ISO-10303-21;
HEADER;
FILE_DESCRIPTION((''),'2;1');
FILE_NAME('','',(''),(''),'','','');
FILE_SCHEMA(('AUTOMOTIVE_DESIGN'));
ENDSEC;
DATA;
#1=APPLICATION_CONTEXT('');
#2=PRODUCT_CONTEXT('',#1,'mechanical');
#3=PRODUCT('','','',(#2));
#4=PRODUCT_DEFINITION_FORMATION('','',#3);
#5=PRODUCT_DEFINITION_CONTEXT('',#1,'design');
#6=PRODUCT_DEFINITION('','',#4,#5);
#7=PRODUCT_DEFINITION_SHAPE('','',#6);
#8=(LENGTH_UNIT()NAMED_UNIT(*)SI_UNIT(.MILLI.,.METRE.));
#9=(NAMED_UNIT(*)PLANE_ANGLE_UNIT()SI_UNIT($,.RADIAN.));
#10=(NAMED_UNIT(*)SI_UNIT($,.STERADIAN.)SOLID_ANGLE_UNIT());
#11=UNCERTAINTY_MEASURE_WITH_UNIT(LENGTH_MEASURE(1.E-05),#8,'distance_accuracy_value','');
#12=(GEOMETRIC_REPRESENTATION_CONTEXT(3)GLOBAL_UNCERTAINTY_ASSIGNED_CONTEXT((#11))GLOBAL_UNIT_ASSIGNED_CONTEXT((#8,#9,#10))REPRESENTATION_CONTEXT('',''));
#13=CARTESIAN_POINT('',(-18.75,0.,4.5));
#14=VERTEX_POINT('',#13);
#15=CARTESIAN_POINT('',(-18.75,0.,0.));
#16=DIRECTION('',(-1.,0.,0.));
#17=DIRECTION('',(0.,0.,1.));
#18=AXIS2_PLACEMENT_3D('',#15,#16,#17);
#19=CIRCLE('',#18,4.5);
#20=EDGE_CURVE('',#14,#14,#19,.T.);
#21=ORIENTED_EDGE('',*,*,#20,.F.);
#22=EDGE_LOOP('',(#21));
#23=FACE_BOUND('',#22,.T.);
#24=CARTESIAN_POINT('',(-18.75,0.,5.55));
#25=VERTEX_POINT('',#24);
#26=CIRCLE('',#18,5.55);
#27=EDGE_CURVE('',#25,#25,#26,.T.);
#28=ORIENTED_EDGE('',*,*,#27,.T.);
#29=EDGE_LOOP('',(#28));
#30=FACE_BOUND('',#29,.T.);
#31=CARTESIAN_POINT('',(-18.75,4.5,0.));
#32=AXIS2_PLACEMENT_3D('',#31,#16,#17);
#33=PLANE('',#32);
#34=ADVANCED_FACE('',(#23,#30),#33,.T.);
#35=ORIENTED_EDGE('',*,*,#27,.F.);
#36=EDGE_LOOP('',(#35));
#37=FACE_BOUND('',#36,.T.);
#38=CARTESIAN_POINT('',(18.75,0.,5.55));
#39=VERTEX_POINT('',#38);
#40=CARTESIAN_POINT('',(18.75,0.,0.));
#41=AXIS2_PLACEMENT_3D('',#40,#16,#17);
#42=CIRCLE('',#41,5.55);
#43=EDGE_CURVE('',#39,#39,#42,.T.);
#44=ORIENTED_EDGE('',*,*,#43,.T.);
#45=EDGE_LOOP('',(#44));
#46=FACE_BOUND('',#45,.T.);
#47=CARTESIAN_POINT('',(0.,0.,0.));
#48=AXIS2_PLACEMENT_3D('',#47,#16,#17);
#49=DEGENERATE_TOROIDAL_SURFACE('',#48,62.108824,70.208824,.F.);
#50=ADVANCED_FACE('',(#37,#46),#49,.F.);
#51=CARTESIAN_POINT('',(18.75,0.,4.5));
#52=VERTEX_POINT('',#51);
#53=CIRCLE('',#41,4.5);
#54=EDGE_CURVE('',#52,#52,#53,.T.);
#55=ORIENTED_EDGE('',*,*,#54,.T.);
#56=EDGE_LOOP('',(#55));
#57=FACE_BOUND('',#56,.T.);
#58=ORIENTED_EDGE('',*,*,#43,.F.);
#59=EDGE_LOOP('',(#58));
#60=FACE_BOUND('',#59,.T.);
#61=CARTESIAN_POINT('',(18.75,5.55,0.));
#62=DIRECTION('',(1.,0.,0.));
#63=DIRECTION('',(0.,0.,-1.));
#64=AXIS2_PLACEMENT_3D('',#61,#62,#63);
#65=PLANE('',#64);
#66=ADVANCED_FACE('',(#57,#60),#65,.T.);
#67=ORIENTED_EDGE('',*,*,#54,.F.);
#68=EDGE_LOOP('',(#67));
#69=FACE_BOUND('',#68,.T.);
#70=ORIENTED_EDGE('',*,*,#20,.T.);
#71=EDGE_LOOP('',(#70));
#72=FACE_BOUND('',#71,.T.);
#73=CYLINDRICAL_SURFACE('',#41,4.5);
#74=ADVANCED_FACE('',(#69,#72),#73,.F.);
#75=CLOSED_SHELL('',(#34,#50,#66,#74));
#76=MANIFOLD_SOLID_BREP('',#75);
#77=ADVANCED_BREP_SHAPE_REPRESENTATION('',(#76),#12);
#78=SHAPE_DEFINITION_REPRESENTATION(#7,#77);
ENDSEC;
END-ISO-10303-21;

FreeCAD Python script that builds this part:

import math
import FreeCAD as App
import Part
import Sketcher
from FreeCAD import Vector

doc = App.newDocument("Part")
body = doc.addObject("PartDesign::Body", "Body")

# Sketch on XY plane
sketch1 = body.newObject("Sketcher::SketchObject", "Sketch")
sketch1.AttachmentSupport = (doc.getObject("XY_Plane"), [""])
sketch1.MapMode = "FlatFace"
sketch1.addGeometry(Part.LineSegment(Vector(18.75, 5.55, 0), Vector(18.75, 4.5, 0)), False)
sketch1.addGeometry(Part.LineSegment(Vector(18.75, 4.5, 0), Vector(-18.75, 4.5, 0)), False)
sketch1.addGeometry(Part.LineSegment(Vector(-18.75, 4.5, 0), Vector(-18.75, 5.55, 0)), False)
sketch1.addGeometry(Part.ArcOfCircle(Part.Circle(Vector(0, -62.108824, 0), Vector(0, 0, 1), 70.208824), math.radians(74.510579), math.radians(105.489421)), False)
sketch1.addConstraint(Sketcher.Constraint("Coincident", 0, 2, 1, 1))
sketch1.addConstraint(Sketcher.Constraint("Coincident", 1, 2, 2, 1))
sketch1.addConstraint(Sketcher.Constraint("Coincident", 2, 2, 3, 2))
sketch1.addConstraint(Sketcher.Constraint("Coincident", 3, 1, 0, 1))
sketch1.addConstraint(Sketcher.Constraint("Vertical", 0))
sketch1.addConstraint(Sketcher.Constraint("Horizontal", 1))
sketch1.addConstraint(Sketcher.Constraint("Vertical", 2))
sketch1.addConstraint(Sketcher.Constraint("Symmetric", 2, 2, 3, 1, -2))
sketch1.addConstraint(Sketcher.Constraint("DistanceX", 1, 2, 1, 1, 37.5))
sketch1.addConstraint(Sketcher.Constraint("DistanceY", 0, 2, 0, 1, 1.05))
sketch1.addConstraint(Sketcher.Constraint("DistanceY", -1, 1, 0, 2, 4.5))
sketch1.addConstraint(Sketcher.Constraint("Radius", 3, 70.208824))
revolution = body.newObject("PartDesign::Revolution", "Revolution")
revolution.Profile = sketch1
revolution.ReferenceAxis = (sketch1, ["H_Axis"])
revolution.Angle = 360

doc.recompute()
